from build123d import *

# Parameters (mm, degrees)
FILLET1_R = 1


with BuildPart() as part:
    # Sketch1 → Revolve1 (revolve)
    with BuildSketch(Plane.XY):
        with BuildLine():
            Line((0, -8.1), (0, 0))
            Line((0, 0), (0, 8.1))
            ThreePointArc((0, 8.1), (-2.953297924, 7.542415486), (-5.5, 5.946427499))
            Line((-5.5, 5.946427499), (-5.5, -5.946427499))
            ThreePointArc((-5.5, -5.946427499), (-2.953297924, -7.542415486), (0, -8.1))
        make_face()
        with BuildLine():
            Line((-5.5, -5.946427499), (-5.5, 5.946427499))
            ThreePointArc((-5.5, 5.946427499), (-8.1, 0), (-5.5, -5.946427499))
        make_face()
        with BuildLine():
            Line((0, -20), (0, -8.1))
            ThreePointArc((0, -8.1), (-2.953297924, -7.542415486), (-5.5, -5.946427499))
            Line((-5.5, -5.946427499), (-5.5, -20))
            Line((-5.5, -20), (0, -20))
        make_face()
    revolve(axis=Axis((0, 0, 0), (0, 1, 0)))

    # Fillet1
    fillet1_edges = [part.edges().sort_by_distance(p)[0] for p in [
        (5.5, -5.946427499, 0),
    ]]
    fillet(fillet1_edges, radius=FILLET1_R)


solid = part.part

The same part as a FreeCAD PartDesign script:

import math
import FreeCAD as App
import Part
import Sketcher
Q = App.Units.Quantity


def edges_at(feature, points):
    """Names of the edges that pass closest to the given points."""
    edges = feature.Shape.Edges
    near = lambda p: min(range(len(edges)), key=lambda i: edges[i].distToShape(Part.Vertex(*p))[0])
    return sorted({f"Edge{near(p) + 1}" for p in points})

doc = App.newDocument("Part")
body = doc.addObject("PartDesign::Body", "Body")

# Sketch on XY plane
sketch1 = body.newObject("Sketcher::SketchObject", "Sketch")
sketch1.AttachmentSupport = (doc.getObject("XY_Plane"), [""])
sketch1.MapMode = "FlatFace"
sketch1.addGeometry(Part.ArcOfCircle(Part.Circle(App.Vector(0, 0, 0), App.Vector(0, 0, 1), 8.1), math.radians(90), math.radians(132.766512)), False)
sketch1.addGeometry(Part.ArcOfCircle(Part.Circle(App.Vector(0, 0, 0), App.Vector(0, 0, 1), 8.1), math.radians(132.766512), math.radians(227.233488)), False)
sketch1.addGeometry(Part.LineSegment(App.Vector(-5.5, -5.946427, 0), App.Vector(-5.5, -20, 0)), False)
sketch1.addGeometry(Part.LineSegment(App.Vector(-5.5, -20, 0), App.Vector(0, -20, 0)), False)
sketch1.addGeometry(Part.LineSegment(App.Vector(0, -20, 0), App.Vector(0, 8.1, 0)), False)
sketch1.addConstraint(Sketcher.Constraint("Tangent", 0, 2, 1, 1))
sketch1.addConstraint(Sketcher.Constraint("Coincident", 1, 2, 2, 1))
sketch1.addConstraint(Sketcher.Constraint("Coincident", 2, 2, 3, 1))
sketch1.addConstraint(Sketcher.Constraint("Coincident", 3, 2, 4, 1))
sketch1.addConstraint(Sketcher.Constraint("Coincident", 4, 2, 0, 1))
sketch1.addConstraint(Sketcher.Constraint("Vertical", 2))
sketch1.addConstraint(Sketcher.Constraint("Horizontal", 3))
sketch1.addConstraint(Sketcher.Constraint("Vertical", 4))
sketch1.addConstraint(Sketcher.Constraint("Coincident", 0, 3, -1, 1))
sketch1.addConstraint(Sketcher.Constraint("Equal", 0, 1))
sketch1.addConstraint(Sketcher.Constraint("PointOnObject", 3, 2, -2))
sketch1.addConstraint(Sketcher.Constraint("Vertical", 0, 2, 1, 2))
sketch1.addConstraint(Sketcher.Constraint("Radius", 0, Q("8.1 mm")))
sketch1.addConstraint(Sketcher.Constraint("DistanceX", 3, 1, 3, 2, Q("5.5 mm")))
sketch1.addConstraint(Sketcher.Constraint("DistanceY", 4, 1, 4, 2, Q("28.1 mm")))
revolution = body.newObject("PartDesign::Revolution", "Revolution")
revolution.Profile = sketch1
revolution.ReferenceAxis = (sketch1, ["V_Axis"])
revolution.Angle = 360
doc.recompute()

fillet = body.newObject("PartDesign::Fillet", "Fillet")
fillet.Base = (revolution, edges_at(revolution, [(5.5, -5.946, 0)]))
fillet.Radius = 1

doc.recompute()
